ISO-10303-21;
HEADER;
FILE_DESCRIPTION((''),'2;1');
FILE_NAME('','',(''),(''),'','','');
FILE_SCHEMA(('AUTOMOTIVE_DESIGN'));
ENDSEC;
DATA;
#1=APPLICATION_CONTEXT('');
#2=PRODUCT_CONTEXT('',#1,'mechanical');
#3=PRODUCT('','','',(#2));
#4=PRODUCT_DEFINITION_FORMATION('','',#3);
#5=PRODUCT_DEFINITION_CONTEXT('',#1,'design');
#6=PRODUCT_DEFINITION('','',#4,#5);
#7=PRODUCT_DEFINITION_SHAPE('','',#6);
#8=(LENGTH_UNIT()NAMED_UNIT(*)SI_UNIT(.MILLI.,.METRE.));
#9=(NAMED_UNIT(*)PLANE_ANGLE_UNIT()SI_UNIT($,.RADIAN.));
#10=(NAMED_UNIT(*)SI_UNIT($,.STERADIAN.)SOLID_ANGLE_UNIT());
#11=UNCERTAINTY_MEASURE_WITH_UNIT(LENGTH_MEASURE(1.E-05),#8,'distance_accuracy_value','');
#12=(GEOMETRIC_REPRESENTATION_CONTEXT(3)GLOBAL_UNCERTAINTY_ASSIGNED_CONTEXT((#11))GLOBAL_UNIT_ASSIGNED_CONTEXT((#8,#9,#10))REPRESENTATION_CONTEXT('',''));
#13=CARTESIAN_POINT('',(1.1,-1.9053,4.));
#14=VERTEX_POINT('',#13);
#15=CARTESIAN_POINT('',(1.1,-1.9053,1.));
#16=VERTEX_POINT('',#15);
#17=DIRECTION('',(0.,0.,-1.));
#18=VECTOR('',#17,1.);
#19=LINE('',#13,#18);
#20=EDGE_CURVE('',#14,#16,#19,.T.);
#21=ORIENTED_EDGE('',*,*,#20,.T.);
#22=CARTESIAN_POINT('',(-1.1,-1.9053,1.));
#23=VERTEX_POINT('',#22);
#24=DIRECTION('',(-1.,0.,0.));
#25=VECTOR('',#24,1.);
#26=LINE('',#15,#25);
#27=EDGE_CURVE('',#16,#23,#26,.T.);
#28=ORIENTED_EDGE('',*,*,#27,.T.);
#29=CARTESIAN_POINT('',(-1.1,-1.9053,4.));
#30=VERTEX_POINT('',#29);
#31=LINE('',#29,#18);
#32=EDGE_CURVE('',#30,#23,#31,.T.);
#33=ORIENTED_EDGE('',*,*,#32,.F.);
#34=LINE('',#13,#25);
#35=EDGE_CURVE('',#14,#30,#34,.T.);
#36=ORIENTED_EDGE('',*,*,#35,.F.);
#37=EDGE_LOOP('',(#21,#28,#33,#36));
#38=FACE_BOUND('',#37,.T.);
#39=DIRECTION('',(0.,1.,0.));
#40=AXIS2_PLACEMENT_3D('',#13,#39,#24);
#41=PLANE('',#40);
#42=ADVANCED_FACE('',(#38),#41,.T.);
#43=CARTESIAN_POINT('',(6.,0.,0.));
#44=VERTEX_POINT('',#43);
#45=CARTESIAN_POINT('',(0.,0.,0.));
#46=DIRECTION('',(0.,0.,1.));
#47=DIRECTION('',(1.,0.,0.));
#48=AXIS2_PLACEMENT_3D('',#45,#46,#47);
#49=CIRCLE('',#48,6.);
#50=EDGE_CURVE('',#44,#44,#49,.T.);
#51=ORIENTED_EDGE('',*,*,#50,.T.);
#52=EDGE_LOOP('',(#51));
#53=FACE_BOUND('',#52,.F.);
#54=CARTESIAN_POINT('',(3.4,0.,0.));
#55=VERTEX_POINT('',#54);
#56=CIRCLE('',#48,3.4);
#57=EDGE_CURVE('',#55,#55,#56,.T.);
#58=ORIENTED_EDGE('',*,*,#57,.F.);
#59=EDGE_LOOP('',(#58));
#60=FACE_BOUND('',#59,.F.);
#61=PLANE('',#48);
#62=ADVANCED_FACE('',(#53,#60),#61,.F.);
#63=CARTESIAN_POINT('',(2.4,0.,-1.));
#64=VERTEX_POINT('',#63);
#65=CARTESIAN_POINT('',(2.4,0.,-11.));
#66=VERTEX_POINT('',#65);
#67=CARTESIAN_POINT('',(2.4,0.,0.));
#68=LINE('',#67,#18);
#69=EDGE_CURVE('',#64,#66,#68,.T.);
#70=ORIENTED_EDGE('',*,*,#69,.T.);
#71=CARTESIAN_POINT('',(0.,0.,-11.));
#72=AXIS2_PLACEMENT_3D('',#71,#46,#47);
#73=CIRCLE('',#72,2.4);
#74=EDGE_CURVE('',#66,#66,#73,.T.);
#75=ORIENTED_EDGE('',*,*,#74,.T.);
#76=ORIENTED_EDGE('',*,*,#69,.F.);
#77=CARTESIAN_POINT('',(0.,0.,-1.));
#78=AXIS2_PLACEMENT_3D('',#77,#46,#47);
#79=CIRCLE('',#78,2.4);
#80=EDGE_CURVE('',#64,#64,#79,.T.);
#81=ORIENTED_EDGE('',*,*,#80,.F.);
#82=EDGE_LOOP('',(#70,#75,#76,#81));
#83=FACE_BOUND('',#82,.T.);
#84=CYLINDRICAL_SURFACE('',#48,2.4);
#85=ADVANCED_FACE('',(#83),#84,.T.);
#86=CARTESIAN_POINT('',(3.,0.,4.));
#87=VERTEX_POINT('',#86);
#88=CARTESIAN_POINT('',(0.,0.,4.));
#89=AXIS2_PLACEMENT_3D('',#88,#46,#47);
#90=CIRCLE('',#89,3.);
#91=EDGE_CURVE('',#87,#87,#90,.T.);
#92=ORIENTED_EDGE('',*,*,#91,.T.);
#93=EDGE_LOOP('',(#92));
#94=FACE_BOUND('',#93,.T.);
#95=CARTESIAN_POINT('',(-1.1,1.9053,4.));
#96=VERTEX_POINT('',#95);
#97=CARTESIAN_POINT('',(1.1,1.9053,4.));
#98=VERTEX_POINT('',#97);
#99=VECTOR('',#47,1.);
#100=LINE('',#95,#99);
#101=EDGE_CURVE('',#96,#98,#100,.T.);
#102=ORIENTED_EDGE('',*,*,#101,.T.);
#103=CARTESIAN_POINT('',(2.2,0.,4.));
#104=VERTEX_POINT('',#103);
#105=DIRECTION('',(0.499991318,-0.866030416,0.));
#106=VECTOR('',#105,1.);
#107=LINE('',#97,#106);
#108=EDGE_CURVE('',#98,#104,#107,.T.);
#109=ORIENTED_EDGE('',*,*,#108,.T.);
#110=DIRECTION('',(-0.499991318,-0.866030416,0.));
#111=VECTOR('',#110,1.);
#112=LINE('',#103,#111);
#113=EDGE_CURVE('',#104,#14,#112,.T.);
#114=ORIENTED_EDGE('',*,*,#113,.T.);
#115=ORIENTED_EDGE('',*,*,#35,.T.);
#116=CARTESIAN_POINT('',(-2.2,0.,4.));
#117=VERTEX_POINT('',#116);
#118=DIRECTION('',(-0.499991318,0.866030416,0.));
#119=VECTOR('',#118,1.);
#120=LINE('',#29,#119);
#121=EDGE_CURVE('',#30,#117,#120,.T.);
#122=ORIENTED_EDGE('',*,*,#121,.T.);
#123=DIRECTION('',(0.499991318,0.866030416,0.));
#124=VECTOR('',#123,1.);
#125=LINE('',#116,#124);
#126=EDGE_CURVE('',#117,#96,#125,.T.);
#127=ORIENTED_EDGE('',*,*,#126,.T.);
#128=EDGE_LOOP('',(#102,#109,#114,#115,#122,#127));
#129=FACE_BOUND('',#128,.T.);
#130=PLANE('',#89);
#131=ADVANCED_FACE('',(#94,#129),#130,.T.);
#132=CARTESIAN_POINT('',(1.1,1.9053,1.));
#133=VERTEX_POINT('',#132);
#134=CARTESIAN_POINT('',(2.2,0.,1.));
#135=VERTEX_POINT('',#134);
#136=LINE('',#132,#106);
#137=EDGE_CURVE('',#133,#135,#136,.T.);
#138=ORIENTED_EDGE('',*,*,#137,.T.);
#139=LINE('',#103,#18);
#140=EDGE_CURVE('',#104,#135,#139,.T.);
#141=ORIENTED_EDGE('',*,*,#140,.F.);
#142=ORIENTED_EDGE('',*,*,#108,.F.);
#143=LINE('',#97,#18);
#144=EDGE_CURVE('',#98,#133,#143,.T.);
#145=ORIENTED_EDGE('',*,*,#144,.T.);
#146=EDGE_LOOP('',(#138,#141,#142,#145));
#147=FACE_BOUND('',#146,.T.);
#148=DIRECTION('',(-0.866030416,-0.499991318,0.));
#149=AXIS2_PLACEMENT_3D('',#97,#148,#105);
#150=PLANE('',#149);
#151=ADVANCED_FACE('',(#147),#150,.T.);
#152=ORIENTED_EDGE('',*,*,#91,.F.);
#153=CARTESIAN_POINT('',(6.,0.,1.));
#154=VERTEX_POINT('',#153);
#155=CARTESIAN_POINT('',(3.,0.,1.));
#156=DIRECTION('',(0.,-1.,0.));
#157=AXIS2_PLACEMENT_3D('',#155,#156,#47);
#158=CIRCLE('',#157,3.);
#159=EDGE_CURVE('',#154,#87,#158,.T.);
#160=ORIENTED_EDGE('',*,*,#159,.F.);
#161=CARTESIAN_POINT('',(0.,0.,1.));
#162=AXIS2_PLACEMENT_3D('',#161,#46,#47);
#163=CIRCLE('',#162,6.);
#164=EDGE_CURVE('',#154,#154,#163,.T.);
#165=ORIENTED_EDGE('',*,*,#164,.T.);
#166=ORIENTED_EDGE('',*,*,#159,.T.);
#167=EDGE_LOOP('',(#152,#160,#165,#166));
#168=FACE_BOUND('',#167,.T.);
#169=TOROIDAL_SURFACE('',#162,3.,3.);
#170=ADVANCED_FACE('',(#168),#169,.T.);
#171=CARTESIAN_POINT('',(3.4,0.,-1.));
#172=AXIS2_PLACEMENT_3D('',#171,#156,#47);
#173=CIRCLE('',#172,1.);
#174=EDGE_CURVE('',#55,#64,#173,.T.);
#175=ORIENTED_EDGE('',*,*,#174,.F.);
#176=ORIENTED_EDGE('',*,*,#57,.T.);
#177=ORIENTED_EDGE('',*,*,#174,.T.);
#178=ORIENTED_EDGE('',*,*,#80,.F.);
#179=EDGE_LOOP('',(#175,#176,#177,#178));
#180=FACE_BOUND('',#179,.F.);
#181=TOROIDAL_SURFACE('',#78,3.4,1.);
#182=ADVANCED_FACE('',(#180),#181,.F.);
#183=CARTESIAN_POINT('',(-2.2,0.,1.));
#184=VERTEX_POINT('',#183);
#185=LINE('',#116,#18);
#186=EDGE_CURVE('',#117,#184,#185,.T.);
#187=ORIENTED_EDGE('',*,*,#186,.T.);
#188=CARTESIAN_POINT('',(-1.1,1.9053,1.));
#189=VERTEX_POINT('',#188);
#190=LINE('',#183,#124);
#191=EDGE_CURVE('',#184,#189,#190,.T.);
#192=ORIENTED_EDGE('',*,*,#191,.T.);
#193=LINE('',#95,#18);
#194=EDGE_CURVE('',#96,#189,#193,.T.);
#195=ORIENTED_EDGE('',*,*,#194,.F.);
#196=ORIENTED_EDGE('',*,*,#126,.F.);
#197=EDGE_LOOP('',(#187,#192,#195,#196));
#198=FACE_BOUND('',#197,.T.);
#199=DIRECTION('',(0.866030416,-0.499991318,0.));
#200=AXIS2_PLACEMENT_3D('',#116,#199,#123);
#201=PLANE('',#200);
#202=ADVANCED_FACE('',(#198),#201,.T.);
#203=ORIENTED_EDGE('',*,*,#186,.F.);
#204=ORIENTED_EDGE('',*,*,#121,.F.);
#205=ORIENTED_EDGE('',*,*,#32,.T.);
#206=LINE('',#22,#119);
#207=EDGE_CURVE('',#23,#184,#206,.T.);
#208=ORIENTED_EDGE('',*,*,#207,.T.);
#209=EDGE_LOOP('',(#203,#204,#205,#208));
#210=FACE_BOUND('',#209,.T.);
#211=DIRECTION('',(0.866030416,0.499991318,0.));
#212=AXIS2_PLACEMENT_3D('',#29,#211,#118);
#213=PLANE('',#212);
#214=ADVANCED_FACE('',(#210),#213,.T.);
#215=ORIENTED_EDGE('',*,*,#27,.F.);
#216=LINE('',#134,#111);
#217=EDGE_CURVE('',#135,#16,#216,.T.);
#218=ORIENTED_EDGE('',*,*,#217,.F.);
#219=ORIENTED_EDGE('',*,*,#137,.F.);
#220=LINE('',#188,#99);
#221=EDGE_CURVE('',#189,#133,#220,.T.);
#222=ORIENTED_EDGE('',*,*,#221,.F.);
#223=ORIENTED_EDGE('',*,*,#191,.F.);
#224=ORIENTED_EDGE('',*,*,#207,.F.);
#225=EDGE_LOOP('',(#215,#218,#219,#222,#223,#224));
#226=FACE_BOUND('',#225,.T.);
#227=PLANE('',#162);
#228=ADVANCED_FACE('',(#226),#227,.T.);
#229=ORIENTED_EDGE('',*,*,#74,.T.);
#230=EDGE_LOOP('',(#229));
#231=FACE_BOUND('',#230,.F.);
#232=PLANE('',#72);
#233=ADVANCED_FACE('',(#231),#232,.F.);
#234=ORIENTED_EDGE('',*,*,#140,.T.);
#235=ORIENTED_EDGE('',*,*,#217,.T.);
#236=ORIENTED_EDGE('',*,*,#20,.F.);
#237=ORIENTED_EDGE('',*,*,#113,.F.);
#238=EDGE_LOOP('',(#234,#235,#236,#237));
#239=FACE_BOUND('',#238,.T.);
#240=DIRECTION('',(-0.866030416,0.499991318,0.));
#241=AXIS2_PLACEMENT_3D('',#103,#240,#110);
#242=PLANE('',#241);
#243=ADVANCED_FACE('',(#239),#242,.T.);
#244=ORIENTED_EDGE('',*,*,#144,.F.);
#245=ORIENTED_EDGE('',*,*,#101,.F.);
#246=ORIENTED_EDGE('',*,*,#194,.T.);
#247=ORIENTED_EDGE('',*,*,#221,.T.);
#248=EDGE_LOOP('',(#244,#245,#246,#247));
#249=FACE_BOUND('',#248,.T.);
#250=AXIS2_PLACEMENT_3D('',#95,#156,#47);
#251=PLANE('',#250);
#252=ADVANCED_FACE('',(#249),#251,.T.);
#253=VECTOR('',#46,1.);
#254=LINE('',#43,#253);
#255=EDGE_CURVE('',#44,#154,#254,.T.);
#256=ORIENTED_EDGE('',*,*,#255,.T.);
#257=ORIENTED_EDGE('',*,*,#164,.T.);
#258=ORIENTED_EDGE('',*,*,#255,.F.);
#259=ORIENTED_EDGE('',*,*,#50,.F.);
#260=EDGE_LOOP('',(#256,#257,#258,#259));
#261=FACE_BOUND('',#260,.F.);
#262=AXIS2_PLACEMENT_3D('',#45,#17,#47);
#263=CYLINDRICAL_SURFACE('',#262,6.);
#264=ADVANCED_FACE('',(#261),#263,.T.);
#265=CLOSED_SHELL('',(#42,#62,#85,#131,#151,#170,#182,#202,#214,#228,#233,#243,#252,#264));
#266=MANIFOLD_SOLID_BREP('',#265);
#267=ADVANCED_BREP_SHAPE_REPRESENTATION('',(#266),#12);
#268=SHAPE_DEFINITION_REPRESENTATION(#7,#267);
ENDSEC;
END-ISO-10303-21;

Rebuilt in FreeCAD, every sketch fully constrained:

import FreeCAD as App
import Part
import Sketcher

V = App.Vector
Q = App.Units.Quantity


def edges_at(feature, points):
    """Names of the edges that pass closest to the given points."""
    edges = feature.Shape.Edges
    near = lambda p: min(range(len(edges)), key=lambda i: edges[i].distToShape(Part.Vertex(*p))[0])
    return sorted({f"Edge{near(p) + 1}" for p in points})


def add_polygon(sketch, points):
    """Adds a closed chain of lines whose ends are joined by coincident constraints."""
    first, n = sketch.GeometryCount, len(points)
    for a, b in zip(points, points[1:] + points[:1]):
        sketch.addGeometry(Part.LineSegment(App.Vector(*a, 0), App.Vector(*b, 0)), False)
    for i in range(n):
        sketch.addConstraint(Sketcher.Constraint("Coincident", first + i, 2, first + (i + 1) % n, 1))

doc = App.newDocument("Part")
body = doc.addObject("PartDesign::Body", "Body")

# Sketch on XY plane
sketch1 = doc.addObject("Sketcher::SketchObject", "Sketch")
body.addObject(sketch1)
sketch1.AttachmentSupport = (doc.XY_Plane, [""])
sketch1.MapMode = "FlatFace"
sketch1.addGeometry(Part.Circle(V(0, 0, 0), V(0, 0, 1), 6), False)
sketch1.addConstraint(Sketcher.Constraint("Coincident", 0, 3, -1, 1))
sketch1.addConstraint(Sketcher.Constraint("Diameter", 0, Q("12 mm")))
pad1 = doc.addObject("PartDesign::Pad", "Pad")
body.addObject(pad1)
pad1.Profile = sketch1
pad1.Length = 4

# Sketch on XY plane
sketch2 = doc.addObject("Sketcher::SketchObject", "Sketch001")
body.addObject(sketch2)
sketch2.AttachmentSupport = (doc.XY_Plane, [""])
sketch2.MapMode = "FlatFace"
sketch2.addGeometry(Part.Circle(V(0, 0, 0), V(0, 0, 1), 2.4), False)
sketch2.addConstraint(Sketcher.Constraint("Coincident", 0, 3, -1, 1))
sketch2.addConstraint(Sketcher.Constraint("Diameter", 0, Q("4.8 mm")))
pad2 = doc.addObject("PartDesign::Pad", "Pad001")
body.addObject(pad2)
pad2.Profile = sketch2
pad2.Length = 11
pad2.Reversed = True
doc.recompute()

fillet = doc.addObject("PartDesign::Fillet", "Fillet")
body.addObject(fillet)
fillet.Base = (pad2, edges_at(pad2, [(-2.4, 0, 0)]))
fillet.Radius = 1
doc.recompute()

fillet2 = doc.addObject("PartDesign::Fillet", "Fillet001")
body.addObject(fillet2)
fillet2.Base = (fillet, edges_at(fillet, [(-6, 0, 4)]))
fillet2.Radius = 3

# Sketch on XY plane
sketch3 = doc.addObject("Sketcher::SketchObject", "Sketch002")
body.addObject(sketch3)
sketch3.AttachmentSupport = (doc.XY_Plane, [""])
sketch3.MapMode = "FlatFace"
sketch3.AttachmentOffset = App.Placement(V(0, 0, 4), App.Rotation())
add_polygon(sketch3, [(1.1, -1.9053), (2.2, 0), (1.1, 1.9053), (-1.1, 1.9053), (-2.2, 0), (-1.1, -1.9053)])  # lines 0-5
sketch3.addConstraint(Sketcher.Constraint("Horizontal", 2))
sketch3.addConstraint(Sketcher.Constraint("Horizontal", 5))
sketch3.addConstraint(Sketcher.Constraint("Symmetric", 0, 2, 3, 2, -1, 1))
sketch3.addConstraint(Sketcher.Constraint("Symmetric", 1, 2, 4, 2, -1, 1))
sketch3.addConstraint(Sketcher.Constraint("PointOnObject", 0, 2, -1))
sketch3.addConstraint(Sketcher.Constraint("Parallel", 0, 3))
sketch3.addConstraint(Sketcher.Constraint("Vertical", 2, 2, 4, 2))
sketch3.addConstraint(Sketcher.Constraint("DistanceX", 3, 2, 0, 2, Q("4.4 mm")))
sketch3.addConstraint(Sketcher.Constraint("Angle", 0, Q("60.0006 deg")))
sketch3.addConstraint(Sketcher.Constraint("DistanceX", 2, 2, 2, 1, Q("2.2 mm")))
pocket1 = doc.addObject("PartDesign::Pocket", "Pocket")
body.addObject(pocket1)
pocket1.Profile = sketch3
pocket1.Length = 3

doc.recompute()
